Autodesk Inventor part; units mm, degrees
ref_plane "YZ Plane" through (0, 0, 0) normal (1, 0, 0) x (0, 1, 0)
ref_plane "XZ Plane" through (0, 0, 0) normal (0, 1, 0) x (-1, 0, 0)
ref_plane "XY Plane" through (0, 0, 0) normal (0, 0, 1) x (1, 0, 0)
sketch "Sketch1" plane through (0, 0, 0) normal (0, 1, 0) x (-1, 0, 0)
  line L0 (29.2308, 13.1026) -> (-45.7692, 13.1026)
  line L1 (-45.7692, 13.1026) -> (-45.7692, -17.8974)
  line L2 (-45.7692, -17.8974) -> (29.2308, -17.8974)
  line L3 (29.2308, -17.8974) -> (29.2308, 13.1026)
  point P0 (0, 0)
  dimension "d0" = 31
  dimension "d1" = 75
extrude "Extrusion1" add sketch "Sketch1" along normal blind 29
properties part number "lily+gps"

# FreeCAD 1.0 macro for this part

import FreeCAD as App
import Part
import Sketcher

V = App.Vector
Q = App.Units.Quantity

doc = App.newDocument("Part")
body = doc.addObject("PartDesign::Body", "Body")

# Sketch on XZ plane
sketch1 = body.newObject("Sketcher::SketchObject", "Sketch")
sketch1.AttachmentSupport = (doc.getObject("XZ_Plane"), [""])
sketch1.MapMode = "FlatFace"
sketch1.addGeometry([
    Part.LineSegment(V(-29, -18, 0), V(-29, 13, 0)),
    Part.LineSegment(V(-29, 13, 0), V(46, 13, 0)),
    Part.LineSegment(V(46, 13, 0), V(46, -18, 0)),
    Part.LineSegment(V(46, -18, 0), V(-29, -18, 0)),
], False)
sketch1.addConstraint([
    Sketcher.Constraint("Coincident", 0, 2, 1, 1),
    Sketcher.Constraint("Coincident", 1, 2, 2, 1),
    Sketcher.Constraint("Coincident", 2, 2, 3, 1),
    Sketcher.Constraint("Coincident", 3, 2, 0, 1),
    Sketcher.Constraint("Vertical", 0),
    Sketcher.Constraint("Horizontal", 1),
    Sketcher.Constraint("Vertical", 2),
    Sketcher.Constraint("Horizontal", 3),
    Sketcher.Constraint("DistanceX", 1, 1, 1, 2, Q("75 mm")),
    Sketcher.Constraint("DistanceY", 0, 1, 0, 2, Q("31 mm")),
    Sketcher.Constraint("DistanceX", 0, 2, -1, 1, Q("29.2308 mm")),
    Sketcher.Constraint("DistanceY", -1, 1, 0, 2, Q("13.1026 mm")),
])
pad1 = body.newObject("PartDesign::Pad", "Pad")
pad1.Profile = sketch1
pad1.Length = 29
pad1.Reversed = True

doc.recompute()
